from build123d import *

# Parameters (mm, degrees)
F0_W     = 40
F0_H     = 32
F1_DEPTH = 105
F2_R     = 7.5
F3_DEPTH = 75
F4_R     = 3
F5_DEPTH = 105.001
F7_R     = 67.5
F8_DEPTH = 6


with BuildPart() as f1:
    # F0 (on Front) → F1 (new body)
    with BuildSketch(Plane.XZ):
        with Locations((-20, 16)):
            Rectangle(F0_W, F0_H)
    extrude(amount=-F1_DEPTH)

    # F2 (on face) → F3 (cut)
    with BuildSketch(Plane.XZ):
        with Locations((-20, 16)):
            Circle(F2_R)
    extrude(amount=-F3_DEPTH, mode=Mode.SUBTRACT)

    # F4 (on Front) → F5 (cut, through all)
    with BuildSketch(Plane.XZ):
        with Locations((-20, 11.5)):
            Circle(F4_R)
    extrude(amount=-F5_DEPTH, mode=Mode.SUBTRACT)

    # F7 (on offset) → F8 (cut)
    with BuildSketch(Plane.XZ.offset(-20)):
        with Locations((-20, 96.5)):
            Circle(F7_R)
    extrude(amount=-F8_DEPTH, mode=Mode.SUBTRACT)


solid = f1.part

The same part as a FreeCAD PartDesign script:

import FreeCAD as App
import Part
import Sketcher

V = App.Vector
Q = App.Units.Quantity

doc = App.newDocument("Part")
body = doc.addObject("PartDesign::Body", "Body")

# Sketch on XZ plane
sketch1 = body.newObject("Sketcher::SketchObject", "Sketch")
sketch1.AttachmentSupport = (doc.getObject("XZ_Plane"), [""])
sketch1.MapMode = "FlatFace"
sketch1.addGeometry(Part.LineSegment(V(-40, 32, 0), V(-40, 0, 0)), False)
sketch1.addGeometry(Part.LineSegment(V(-40, 0, 0), V(0, 0, 0)), False)
sketch1.addGeometry(Part.LineSegment(V(0, 0, 0), V(0, 32, 0)), False)
sketch1.addGeometry(Part.LineSegment(V(0, 32, 0), V(-40, 32, 0)), False)
sketch1.addConstraint(Sketcher.Constraint("Coincident", 0, 2, 1, 1))
sketch1.addConstraint(Sketcher.Constraint("Coincident", 1, 2, 2, 1))
sketch1.addConstraint(Sketcher.Constraint("Coincident", 2, 2, 3, 1))
sketch1.addConstraint(Sketcher.Constraint("Coincident", 3, 2, 0, 1))
sketch1.addConstraint(Sketcher.Constraint("Vertical", 0))
sketch1.addConstraint(Sketcher.Constraint("Horizontal", 1))
sketch1.addConstraint(Sketcher.Constraint("Vertical", 2))
sketch1.addConstraint(Sketcher.Constraint("Horizontal", 3))
sketch1.addConstraint(Sketcher.Constraint("Coincident", 1, 2, -1, 1))
sketch1.addConstraint(Sketcher.Constraint("DistanceX", 1, 1, 1, 2, Q("40 mm")))
sketch1.addConstraint(Sketcher.Constraint("DistanceY", 0, 2, 0, 1, Q("32 mm")))
pad1 = body.newObject("PartDesign::Pad", "Pad")
pad1.Profile = sketch1
pad1.Length = 105
pad1.Reversed = True

# Sketch on XZ plane
sketch2 = body.newObject("Sketcher::SketchObject", "Sketch001")
sketch2.AttachmentSupport = (doc.getObject("XZ_Plane"), [""])
sketch2.MapMode = "FlatFace"
sketch2.addGeometry(Part.Circle(V(-20, 16, 0), V(0, 0, 1), 8), False)
sketch2.addConstraint(Sketcher.Constraint("Diameter", 0, Q("15 mm")))
sketch2.addConstraint(Sketcher.Constraint("DistanceX", 0, 3, -1, 1, Q("20 mm")))
sketch2.addConstraint(Sketcher.Constraint("DistanceY", -1, 1, 0, 3, Q("16 mm")))
pocket1 = body.newObject("PartDesign::Pocket", "Pocket")
pocket1.Profile = sketch2
pocket1.Length = 75

# Sketch on XZ plane
sketch3 = body.newObject("Sketcher::SketchObject", "Sketch002")
sketch3.AttachmentSupport = (doc.getObject("XZ_Plane"), [""])
sketch3.MapMode = "FlatFace"
sketch3.addGeometry(Part.Circle(V(-20, 11.5, 0), V(0, 0, 1), 3), False)
sketch3.addConstraint(Sketcher.Constraint("Diameter", 0, Q("6 mm")))
sketch3.addConstraint(Sketcher.Constraint("DistanceX", 0, 3, -1, 1, Q("20 mm")))
sketch3.addConstraint(Sketcher.Constraint("DistanceY", -1, 1, 0, 3, Q("11.5 mm")))
pocket2 = body.newObject("PartDesign::Pocket", "Pocket001")
pocket2.Profile = sketch3
pocket2.Type = "ThroughAll"

# Sketch on XZ plane
sketch4 = body.newObject("Sketcher::SketchObject", "Sketch003")
sketch4.AttachmentSupport = (doc.getObject("XZ_Plane"), [""])
sketch4.MapMode = "FlatFace"
sketch4.AttachmentOffset = App.Placement(V(0, 0, -20), App.Rotation())
sketch4.addGeometry(Part.Circle(V(-20, 96, 0), V(0, 0, 1), 68), False)
sketch4.addConstraint(Sketcher.Constraint("Diameter", 0, Q("135 mm")))
sketch4.addConstraint(Sketcher.Constraint("DistanceX", 0, 3, -1, 1, Q("20 mm")))
sketch4.addConstraint(Sketcher.Constraint("DistanceY", -1, 1, 0, 3, Q("96.5 mm")))
pocket3 = body.newObject("PartDesign::Pocket", "Pocket002")
pocket3.Profile = sketch4
pocket3.Length = 6

doc.recompute()
